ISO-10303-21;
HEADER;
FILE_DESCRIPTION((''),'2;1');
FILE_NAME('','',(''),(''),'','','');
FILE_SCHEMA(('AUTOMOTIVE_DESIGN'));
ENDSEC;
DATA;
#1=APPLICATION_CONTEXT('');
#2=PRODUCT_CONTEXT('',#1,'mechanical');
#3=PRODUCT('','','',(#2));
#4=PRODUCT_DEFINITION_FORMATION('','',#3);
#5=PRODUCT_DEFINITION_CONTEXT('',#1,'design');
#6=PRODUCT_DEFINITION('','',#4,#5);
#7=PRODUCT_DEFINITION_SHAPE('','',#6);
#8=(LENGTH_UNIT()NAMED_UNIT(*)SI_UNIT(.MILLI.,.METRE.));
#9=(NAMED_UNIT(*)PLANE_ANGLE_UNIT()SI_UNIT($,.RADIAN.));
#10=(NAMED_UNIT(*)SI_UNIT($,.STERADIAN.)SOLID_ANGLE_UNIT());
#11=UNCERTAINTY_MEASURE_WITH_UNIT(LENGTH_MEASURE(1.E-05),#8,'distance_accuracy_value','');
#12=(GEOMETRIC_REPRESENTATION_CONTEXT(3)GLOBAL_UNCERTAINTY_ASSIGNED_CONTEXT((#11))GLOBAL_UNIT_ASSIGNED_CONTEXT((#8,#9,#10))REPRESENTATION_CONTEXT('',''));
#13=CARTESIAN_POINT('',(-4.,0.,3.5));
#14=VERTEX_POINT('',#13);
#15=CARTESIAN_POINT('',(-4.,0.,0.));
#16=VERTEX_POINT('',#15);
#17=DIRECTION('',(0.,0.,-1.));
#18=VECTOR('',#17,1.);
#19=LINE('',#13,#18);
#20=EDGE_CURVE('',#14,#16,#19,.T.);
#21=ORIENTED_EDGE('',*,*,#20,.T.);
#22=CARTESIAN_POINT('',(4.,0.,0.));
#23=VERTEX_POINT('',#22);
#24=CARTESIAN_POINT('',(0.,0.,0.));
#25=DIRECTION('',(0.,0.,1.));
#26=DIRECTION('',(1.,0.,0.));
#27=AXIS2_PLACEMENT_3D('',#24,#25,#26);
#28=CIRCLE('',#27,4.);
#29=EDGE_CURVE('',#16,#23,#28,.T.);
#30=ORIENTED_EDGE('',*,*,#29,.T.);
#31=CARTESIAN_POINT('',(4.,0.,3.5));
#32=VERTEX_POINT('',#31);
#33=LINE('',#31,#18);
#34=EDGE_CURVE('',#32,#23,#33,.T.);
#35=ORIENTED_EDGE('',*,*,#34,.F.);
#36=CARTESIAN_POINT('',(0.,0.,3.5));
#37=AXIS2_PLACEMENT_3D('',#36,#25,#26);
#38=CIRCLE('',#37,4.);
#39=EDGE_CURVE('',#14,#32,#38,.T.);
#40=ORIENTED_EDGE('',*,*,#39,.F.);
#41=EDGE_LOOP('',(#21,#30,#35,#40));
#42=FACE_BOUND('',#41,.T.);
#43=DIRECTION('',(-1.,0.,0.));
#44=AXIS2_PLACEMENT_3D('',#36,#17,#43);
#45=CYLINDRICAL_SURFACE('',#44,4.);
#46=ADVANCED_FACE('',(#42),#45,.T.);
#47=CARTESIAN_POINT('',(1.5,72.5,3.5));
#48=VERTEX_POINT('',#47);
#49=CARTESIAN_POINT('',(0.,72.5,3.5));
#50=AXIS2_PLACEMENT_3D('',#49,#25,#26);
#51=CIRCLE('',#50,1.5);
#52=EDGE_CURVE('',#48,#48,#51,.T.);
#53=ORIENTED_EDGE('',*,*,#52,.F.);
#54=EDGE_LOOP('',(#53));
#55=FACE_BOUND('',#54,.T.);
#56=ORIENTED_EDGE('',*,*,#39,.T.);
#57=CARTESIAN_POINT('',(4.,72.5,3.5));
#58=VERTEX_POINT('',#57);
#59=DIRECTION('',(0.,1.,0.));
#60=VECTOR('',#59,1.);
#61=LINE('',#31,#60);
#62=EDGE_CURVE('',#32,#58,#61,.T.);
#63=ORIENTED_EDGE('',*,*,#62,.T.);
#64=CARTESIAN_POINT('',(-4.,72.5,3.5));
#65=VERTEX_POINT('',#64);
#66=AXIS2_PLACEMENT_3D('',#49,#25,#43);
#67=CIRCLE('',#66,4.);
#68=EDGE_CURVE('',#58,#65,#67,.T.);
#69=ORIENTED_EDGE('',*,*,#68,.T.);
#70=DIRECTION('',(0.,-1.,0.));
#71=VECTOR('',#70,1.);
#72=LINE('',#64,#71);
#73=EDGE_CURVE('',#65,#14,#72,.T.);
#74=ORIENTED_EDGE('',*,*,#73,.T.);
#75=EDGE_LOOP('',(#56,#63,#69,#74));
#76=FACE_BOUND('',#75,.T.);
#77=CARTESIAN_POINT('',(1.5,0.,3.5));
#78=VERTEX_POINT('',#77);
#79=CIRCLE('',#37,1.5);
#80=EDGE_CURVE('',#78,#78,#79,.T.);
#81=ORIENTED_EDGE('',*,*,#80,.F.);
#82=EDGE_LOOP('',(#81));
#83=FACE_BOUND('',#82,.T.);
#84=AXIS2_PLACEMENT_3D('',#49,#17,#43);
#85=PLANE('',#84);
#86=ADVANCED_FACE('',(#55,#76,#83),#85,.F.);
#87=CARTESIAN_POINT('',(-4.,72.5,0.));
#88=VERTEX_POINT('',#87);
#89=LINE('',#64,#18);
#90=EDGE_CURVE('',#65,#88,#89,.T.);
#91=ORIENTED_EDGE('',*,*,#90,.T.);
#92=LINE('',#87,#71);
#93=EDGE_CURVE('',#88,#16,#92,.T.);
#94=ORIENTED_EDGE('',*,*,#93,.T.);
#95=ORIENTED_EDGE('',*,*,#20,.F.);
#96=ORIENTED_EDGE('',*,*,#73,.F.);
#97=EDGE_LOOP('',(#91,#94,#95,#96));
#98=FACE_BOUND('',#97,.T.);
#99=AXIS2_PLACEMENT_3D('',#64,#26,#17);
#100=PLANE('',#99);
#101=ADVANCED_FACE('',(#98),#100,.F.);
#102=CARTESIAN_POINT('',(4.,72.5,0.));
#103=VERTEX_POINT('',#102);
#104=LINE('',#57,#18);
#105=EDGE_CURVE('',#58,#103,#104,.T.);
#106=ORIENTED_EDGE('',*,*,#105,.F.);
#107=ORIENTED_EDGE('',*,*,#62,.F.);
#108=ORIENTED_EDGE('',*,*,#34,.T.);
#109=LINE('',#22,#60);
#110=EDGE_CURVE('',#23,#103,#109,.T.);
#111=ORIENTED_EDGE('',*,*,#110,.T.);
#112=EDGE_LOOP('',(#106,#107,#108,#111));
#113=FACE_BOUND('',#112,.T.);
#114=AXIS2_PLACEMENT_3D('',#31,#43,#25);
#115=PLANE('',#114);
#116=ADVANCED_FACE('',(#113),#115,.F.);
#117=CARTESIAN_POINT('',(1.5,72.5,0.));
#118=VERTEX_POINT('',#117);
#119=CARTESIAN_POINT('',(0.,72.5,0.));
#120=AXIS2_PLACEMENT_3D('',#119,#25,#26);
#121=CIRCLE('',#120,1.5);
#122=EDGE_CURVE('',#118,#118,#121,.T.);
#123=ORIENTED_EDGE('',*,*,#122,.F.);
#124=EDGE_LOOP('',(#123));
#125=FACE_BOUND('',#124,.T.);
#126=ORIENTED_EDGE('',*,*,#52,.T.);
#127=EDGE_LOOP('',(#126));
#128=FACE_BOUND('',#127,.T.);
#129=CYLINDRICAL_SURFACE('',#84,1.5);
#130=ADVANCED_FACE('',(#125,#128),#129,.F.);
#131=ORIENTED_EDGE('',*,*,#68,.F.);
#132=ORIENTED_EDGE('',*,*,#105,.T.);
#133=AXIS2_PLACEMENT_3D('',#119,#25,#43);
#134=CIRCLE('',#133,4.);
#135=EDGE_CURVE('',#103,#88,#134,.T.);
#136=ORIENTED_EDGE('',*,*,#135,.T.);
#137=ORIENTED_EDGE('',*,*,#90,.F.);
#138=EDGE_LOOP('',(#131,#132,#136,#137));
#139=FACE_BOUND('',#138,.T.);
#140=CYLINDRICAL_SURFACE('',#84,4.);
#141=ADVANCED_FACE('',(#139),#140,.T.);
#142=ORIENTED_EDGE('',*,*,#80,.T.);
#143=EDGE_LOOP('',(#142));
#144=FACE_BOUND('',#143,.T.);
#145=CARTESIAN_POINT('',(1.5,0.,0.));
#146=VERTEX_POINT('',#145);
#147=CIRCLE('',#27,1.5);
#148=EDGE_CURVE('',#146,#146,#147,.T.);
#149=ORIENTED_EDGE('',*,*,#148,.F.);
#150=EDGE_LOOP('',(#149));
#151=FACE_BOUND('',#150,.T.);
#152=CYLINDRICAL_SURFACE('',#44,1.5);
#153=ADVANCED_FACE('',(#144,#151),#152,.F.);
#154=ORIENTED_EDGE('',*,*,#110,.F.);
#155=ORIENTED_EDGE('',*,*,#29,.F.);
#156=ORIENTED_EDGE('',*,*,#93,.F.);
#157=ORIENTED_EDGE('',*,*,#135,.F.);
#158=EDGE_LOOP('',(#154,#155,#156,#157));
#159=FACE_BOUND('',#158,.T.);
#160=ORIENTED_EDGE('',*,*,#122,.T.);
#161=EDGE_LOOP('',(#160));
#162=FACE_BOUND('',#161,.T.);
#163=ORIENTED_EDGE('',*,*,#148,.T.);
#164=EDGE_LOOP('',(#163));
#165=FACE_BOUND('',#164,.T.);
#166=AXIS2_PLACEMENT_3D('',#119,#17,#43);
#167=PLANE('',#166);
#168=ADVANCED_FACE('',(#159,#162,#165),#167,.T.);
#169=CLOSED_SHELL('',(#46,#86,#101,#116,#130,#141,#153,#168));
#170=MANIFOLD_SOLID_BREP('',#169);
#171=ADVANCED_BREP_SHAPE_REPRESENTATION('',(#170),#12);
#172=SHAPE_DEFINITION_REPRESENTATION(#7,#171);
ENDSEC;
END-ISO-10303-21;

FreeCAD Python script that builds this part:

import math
import FreeCAD as App
import Part
import Sketcher
from FreeCAD import Vector
Q = App.Units.Quantity

doc = App.newDocument("Part")
params = doc.addObject("Spreadsheet::Sheet", "Params")
for row, (alias, value) in enumerate([
    ("sketch1_diameter", "3 mm"),
    ("sketch1_radius", "4 mm"),
    ("sketch1_height", "72.5 mm"),
    ("pad1_length", "3.5 mm"),
], start=1):
    params.set(f"A{row}", alias)
    params.set(f"B{row}", "=" + value)
    params.setAlias(f"B{row}", alias)

body = doc.addObject("PartDesign::Body", "Body")

sketch1 = body.newObject("Sketcher::SketchObject", "Sketch")
sketch1.AttachmentSupport = (doc.getObject("XY_Plane"), [""])
sketch1.MapMode = "FlatFace"
sketch1.addGeometry([
    Part.LineSegment(Vector(-4, 72.5, 0), Vector(-4, 0, 0)),
    Part.ArcOfCircle(Part.Circle(Vector(0, 0, 0), Vector(0, 0, 1), 4), math.radians(180), math.radians(360)),
    Part.LineSegment(Vector(4, 0, 0), Vector(4, 72.5, 0)),
    Part.ArcOfCircle(Part.Circle(Vector(0, 72.5, 0), Vector(0, 0, 1), 4), math.radians(0), math.radians(180)),
    Part.Circle(Vector(0, 0, 0), Vector(0, 0, 1), 1.5),
    Part.Circle(Vector(0, 72.5, 0), Vector(0, 0, 1), 1.5),
], False)
sketch1.addConstraint([
    Sketcher.Constraint("Tangent", 0, 2, 1, 1),
    Sketcher.Constraint("Tangent", 1, 2, 2, 1),
    Sketcher.Constraint("Tangent", 2, 2, 3, 1),
    Sketcher.Constraint("Tangent", 3, 2, 0, 1),
    Sketcher.Constraint("Vertical", 0),
    Sketcher.Constraint("Vertical", 2),
    Sketcher.Constraint("Coincident", 1, 3, -1, 1),
    Sketcher.Constraint("Coincident", 4, 3, -1, 1),
    Sketcher.Constraint("Coincident", 5, 3, 3, 3),
    Sketcher.Constraint("Equal", 4, 5),
    Sketcher.Constraint("Diameter", 4, Q("3 mm")),
    Sketcher.Constraint("Radius", 1, Q("4 mm")),
    Sketcher.Constraint("DistanceY", 0, 2, 0, 1, Q("72.5 mm")),
])
sketch1.setExpression("Constraints[10]", "Params.sketch1_diameter")
sketch1.setExpression("Constraints[11]", "Params.sketch1_radius")
sketch1.setExpression("Constraints[12]", "Params.sketch1_height")
pad1 = body.newObject("PartDesign::Pad", "Pad")
pad1.Profile = sketch1
pad1.setExpression("Length", "Params.pad1_length")

doc.recompute()
